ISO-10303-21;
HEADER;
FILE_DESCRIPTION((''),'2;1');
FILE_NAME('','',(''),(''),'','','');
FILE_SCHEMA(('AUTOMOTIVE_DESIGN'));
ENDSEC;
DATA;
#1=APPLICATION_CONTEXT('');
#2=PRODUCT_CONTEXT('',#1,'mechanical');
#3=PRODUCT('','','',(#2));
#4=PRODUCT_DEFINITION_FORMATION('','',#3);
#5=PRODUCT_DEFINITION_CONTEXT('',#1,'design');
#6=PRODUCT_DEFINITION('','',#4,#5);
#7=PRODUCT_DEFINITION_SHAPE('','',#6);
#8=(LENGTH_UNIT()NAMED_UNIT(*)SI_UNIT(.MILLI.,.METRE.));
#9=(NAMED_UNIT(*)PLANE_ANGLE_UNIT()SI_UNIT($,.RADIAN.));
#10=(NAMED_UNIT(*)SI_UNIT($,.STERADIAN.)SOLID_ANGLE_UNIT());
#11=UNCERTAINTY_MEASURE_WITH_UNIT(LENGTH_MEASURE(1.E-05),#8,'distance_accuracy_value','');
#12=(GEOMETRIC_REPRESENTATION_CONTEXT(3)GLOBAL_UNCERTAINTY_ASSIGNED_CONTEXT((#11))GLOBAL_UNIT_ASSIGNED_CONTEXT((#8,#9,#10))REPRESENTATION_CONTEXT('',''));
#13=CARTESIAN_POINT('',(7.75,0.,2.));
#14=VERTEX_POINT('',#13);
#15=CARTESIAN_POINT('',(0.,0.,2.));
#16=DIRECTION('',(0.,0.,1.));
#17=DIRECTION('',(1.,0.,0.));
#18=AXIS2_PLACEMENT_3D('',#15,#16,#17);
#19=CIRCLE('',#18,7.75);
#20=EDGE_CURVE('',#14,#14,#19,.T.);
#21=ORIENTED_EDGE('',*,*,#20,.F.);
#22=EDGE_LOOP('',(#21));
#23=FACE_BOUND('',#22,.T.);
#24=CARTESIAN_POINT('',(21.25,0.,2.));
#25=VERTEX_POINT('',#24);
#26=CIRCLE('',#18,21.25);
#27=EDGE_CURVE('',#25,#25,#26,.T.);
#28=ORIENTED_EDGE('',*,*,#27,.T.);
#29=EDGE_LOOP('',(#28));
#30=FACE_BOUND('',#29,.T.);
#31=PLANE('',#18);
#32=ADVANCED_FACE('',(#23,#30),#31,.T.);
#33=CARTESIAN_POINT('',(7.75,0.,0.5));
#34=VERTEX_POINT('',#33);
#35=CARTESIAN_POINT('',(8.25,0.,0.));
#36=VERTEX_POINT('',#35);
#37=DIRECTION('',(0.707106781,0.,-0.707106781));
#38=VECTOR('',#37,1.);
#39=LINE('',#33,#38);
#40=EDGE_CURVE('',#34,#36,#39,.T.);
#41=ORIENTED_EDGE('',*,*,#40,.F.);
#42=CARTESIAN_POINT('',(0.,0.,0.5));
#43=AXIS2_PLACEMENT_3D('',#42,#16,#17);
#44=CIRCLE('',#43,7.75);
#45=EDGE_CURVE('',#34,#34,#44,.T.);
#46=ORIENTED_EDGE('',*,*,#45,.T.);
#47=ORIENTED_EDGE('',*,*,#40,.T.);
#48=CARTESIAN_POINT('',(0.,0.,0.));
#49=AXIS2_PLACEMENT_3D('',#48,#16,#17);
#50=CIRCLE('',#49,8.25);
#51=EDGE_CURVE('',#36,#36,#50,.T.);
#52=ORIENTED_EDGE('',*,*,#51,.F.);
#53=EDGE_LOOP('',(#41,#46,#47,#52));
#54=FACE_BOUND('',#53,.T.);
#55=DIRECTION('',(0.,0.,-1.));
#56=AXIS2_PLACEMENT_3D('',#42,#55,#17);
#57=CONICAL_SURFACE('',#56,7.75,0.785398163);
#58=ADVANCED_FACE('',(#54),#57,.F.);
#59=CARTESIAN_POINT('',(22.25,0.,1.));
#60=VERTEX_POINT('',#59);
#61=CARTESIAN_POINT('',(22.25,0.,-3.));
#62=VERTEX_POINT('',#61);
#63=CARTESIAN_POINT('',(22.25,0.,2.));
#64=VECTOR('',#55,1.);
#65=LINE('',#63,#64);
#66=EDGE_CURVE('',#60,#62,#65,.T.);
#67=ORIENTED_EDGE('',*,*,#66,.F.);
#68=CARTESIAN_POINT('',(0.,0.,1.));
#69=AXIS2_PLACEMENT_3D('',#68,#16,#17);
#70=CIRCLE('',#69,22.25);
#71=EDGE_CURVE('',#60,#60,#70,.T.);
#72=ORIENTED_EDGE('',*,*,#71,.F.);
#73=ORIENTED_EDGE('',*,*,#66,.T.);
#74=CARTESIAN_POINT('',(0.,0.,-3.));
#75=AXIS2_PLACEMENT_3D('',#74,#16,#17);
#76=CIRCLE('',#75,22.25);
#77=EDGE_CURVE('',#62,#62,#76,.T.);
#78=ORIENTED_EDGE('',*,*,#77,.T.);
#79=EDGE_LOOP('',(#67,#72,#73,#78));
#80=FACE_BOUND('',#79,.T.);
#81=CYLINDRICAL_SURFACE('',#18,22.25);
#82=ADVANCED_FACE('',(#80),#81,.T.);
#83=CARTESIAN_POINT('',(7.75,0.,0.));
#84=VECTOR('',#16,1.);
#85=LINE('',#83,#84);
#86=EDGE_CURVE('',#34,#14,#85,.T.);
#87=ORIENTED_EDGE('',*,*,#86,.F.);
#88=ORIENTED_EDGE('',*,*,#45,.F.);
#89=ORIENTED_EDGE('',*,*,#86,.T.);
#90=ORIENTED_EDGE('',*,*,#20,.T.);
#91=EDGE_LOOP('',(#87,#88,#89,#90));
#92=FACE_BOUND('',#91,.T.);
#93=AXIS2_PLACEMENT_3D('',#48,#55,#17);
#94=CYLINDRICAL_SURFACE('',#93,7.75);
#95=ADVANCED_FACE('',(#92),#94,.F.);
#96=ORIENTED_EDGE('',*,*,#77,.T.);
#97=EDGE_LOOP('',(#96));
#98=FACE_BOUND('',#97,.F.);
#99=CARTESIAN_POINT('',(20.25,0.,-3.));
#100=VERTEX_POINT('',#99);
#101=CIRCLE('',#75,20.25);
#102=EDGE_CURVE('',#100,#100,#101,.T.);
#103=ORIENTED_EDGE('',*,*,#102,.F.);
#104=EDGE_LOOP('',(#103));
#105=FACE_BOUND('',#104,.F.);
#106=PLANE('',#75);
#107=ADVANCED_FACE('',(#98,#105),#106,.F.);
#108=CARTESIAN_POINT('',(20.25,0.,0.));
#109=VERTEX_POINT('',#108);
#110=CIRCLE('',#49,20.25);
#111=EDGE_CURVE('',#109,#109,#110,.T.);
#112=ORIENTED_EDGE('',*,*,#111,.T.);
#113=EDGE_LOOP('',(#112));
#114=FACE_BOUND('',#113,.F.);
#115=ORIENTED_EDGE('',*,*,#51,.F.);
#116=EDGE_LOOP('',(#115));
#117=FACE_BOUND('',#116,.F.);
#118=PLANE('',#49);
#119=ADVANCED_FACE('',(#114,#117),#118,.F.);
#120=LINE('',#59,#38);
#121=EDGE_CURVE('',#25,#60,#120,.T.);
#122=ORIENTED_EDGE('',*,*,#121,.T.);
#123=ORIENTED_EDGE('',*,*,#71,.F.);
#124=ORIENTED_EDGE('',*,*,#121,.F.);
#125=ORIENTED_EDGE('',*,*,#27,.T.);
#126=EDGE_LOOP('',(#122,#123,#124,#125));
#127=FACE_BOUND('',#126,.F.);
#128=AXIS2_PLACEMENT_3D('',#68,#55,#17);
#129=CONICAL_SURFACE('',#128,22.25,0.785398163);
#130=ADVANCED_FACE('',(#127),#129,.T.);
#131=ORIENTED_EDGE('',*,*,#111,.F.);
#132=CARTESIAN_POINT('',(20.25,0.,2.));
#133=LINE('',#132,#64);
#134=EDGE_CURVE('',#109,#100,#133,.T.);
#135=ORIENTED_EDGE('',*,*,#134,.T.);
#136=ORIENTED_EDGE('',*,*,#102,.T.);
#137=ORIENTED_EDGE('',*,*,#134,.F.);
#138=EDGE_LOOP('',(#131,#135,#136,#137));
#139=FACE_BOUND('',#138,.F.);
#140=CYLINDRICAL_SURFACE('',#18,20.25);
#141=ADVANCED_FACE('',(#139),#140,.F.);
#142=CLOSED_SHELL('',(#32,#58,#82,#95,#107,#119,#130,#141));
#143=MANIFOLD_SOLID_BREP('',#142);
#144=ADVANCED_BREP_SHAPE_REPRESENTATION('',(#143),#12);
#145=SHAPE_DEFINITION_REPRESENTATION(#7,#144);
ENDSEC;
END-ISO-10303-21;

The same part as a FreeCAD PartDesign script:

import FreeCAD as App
import Part
import Sketcher
from FreeCAD import Vector
Q = App.Units.Quantity


def edges_at(feature, points):
    """Names of the edges that pass closest to the given points."""
    edges = feature.Shape.Edges
    near = lambda p: min(range(len(edges)), key=lambda i: edges[i].distToShape(Part.Vertex(*p))[0])
    return sorted({f"Edge{near(p) + 1}" for p in points})

doc = App.newDocument("Part")
body = doc.addObject("PartDesign::Body", "Body")

# Sketch on XY plane
sketch1 = body.newObject("Sketcher::SketchObject", "Sketch")
sketch1.AttachmentSupport = (doc.getObject("XY_Plane"), [""])
sketch1.MapMode = "FlatFace"
sketch1.addGeometry([
    Part.Circle(Vector(0, 0, 0), Vector(0, 0, 1), 20),
    Part.Circle(Vector(0, 0, 0), Vector(0, 0, 1), 8),
], False)
sketch1.addConstraint([
    Sketcher.Constraint("Coincident", 0, 3, -1, 1),
    Sketcher.Constraint("Coincident", 1, 3, -1, 1),
    Sketcher.Constraint("Diameter", 0, Q("40.5 mm")),
    Sketcher.Constraint("Diameter", 1, Q("15.5 mm")),
])
pad1 = body.newObject("PartDesign::Pad", "Pad")
pad1.Profile = sketch1
pad1.Length = 2

# Sketch on XY plane
sketch2 = body.newObject("Sketcher::SketchObject", "Sketch001")
sketch2.AttachmentSupport = (doc.getObject("XY_Plane"), [""])
sketch2.MapMode = "FlatFace"
sketch2.AttachmentOffset = App.Placement(Vector(0, 0, 2), App.Rotation())
sketch2.addGeometry([
    Part.Circle(Vector(0, 0, 0), Vector(0, 0, 1), 22),
    Part.Circle(Vector(0, 0, 0), Vector(0, 0, 1), 20),
], False)
sketch2.addConstraint([
    Sketcher.Constraint("Coincident", 0, 3, -1, 1),
    Sketcher.Constraint("Coincident", 1, 3, -1, 1),
    Sketcher.Constraint("Diameter", 0, Q("44.5 mm")),
    Sketcher.Constraint("Diameter", 1, Q("40.5 mm")),
])
pad2 = body.newObject("PartDesign::Pad", "Pad001")
pad2.Profile = sketch2
pad2.Length = 5
pad2.Reversed = True
doc.recompute()

chamfer = body.newObject("PartDesign::Chamfer", "Chamfer")
chamfer.Base = (pad2, edges_at(pad2, [(-7.75, 0, 0)]))
chamfer.Size = 0.5
doc.recompute()

chamfer2 = body.newObject("PartDesign::Chamfer", "Chamfer001")
chamfer2.Base = (chamfer, edges_at(chamfer, [(-22.25, 0, 2)]))
chamfer2.Size = 1

doc.recompute()
